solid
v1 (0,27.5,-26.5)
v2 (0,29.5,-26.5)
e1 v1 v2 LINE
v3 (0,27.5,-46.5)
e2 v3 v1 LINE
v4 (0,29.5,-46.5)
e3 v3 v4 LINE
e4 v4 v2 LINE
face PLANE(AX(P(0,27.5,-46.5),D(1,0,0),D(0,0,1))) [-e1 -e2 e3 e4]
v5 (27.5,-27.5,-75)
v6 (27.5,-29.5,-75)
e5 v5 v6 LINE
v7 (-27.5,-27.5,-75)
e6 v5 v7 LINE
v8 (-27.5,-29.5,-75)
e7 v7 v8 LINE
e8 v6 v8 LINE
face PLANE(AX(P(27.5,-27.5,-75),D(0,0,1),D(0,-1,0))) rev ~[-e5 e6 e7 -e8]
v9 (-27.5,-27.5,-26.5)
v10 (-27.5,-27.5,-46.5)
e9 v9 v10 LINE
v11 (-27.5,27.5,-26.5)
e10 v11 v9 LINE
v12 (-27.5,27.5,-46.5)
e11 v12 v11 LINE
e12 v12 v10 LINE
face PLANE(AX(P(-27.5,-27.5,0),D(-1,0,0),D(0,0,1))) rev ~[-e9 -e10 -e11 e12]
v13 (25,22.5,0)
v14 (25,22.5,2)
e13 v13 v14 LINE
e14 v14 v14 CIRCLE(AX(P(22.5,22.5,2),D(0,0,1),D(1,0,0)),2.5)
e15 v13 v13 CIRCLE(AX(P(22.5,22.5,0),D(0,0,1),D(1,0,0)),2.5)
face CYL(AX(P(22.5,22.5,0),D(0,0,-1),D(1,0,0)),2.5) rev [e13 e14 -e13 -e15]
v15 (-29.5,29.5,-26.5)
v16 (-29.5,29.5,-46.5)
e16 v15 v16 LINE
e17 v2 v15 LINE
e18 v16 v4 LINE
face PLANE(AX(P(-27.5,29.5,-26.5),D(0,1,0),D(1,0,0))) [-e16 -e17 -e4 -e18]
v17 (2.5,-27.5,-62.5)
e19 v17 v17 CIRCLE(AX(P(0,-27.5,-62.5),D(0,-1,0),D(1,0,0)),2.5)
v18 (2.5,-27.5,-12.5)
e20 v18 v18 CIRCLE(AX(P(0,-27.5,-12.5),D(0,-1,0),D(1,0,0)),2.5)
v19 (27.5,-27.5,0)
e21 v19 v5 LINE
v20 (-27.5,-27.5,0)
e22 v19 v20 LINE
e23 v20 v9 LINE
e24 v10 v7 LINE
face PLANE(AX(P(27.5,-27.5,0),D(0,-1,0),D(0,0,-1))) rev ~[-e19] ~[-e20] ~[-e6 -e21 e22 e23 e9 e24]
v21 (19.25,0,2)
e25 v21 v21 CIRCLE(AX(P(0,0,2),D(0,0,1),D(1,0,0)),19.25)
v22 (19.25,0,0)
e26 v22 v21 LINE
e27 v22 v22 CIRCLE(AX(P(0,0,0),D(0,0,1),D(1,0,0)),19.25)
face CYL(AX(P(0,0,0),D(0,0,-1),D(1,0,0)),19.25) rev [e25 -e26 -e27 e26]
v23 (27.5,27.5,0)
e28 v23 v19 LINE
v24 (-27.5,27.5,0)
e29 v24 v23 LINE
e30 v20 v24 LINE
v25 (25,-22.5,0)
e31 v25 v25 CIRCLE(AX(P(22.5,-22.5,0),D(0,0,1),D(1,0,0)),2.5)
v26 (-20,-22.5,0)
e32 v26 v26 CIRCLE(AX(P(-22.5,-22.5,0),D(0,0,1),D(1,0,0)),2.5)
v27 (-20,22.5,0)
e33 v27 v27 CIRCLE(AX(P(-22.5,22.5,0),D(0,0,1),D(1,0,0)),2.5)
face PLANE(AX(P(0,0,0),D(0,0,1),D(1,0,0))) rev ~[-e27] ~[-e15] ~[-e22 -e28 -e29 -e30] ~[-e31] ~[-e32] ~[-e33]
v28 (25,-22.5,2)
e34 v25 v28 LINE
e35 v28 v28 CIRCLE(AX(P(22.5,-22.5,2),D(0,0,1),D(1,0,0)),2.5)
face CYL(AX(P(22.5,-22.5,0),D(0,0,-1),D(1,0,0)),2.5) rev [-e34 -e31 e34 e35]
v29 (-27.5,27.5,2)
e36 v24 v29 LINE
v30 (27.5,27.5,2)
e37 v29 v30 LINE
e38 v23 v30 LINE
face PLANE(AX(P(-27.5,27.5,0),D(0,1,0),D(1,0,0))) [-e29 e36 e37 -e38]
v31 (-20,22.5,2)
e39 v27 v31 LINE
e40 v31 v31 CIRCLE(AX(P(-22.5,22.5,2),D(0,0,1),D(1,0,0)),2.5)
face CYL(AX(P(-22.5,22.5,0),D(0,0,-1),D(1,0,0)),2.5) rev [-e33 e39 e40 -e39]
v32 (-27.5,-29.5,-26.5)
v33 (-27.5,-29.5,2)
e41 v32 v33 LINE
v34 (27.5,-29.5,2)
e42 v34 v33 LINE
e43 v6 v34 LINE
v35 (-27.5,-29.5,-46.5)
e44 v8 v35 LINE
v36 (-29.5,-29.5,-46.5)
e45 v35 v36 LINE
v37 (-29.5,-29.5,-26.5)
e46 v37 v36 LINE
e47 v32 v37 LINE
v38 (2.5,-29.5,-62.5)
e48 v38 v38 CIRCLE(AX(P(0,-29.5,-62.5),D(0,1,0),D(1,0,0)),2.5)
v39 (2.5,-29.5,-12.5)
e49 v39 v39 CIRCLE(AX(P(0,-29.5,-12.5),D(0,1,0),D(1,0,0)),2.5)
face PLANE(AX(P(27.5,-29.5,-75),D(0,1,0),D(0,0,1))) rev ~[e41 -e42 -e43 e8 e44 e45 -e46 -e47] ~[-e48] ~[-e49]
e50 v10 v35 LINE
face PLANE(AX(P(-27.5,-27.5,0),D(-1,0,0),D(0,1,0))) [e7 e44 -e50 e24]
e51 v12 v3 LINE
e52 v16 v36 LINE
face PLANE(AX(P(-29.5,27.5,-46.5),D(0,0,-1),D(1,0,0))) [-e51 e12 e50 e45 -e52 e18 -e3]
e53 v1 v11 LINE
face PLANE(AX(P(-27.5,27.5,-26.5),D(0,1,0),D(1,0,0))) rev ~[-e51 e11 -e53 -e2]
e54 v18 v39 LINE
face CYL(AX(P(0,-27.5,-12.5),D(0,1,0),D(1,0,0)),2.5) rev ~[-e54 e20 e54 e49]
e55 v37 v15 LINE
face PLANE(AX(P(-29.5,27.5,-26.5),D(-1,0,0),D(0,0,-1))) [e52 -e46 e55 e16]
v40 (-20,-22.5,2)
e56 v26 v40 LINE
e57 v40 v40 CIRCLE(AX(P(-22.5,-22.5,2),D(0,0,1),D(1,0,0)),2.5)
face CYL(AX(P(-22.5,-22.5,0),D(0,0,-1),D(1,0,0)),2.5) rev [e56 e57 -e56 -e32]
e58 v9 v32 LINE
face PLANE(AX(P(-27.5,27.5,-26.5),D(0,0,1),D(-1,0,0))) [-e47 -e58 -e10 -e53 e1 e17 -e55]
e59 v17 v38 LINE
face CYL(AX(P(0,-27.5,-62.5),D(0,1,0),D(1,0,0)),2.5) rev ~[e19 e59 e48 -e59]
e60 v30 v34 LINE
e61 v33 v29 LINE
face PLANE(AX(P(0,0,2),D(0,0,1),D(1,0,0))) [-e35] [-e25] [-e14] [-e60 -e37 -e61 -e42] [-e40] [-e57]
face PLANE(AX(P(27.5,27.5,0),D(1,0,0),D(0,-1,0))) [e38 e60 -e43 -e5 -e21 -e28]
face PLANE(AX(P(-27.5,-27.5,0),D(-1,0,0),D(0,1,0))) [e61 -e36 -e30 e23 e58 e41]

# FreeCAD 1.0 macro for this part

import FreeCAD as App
import Part
import Sketcher
Q = App.Units.Quantity

doc = App.newDocument("Part")
params = doc.addObject("Spreadsheet::Sheet", "Params")
for row, (alias, value) in enumerate([
    ("sketch1_diameter", "5 mm"),
    ("sketch1_diameter2", "38.5 mm"),
    ("sketch1_width", "55 mm"),
    ("pad1_length", "2 mm"),
    ("sketch2_width", "2 mm"),
    ("sketch2_height", "77 mm"),
    ("pad2_length", "55 mm"),
    ("sketch3_width", "57 mm"),
    ("sketch3_height", "20 mm"),
    ("pad3_length", "2 mm"),
    ("sketch4_height", "20 mm"),
    ("sketch4_width", "29.5 mm"),
    ("pad4_length", "2 mm"),
    ("sketch5_diameter", "5 mm"),
    ("pocket1_length", "2 mm"),
], start=1):
    params.set(f"A{row}", alias)
    params.set(f"B{row}", "=" + value)
    params.setAlias(f"B{row}", alias)

body = doc.addObject("PartDesign::Body", "Body")

# Sketch on XY plane
sketch1 = doc.addObject("Sketcher::SketchObject", "Sketch")
body.addObject(sketch1)
sketch1.AttachmentSupport = (doc.XY_Plane, [""])
sketch1.MapMode = "FlatFace"
sketch1.addGeometry([
    Part.LineSegment(App.Vector(27.5, 27.5, 0), App.Vector(-27.5, 27.5, 0)),  # 0
    Part.LineSegment(App.Vector(-27.5, 27.5, 0), App.Vector(-27.5, -27.5, 0)),  # 1
    Part.LineSegment(App.Vector(-27.5, -27.5, 0), App.Vector(27.5, -27.5, 0)),  # 2
    Part.LineSegment(App.Vector(27.5, -27.5, 0), App.Vector(27.5, 27.5, 0)),  # 3
    Part.Circle(App.Vector(-22.5, -22.5, 0), App.Vector(0, 0, 1), 2.5),  # 4
    Part.Circle(App.Vector(22.5, -22.5, 0), App.Vector(0, 0, 1), 2.5),  # 5
    Part.Circle(App.Vector(-22.5, 22.5, 0), App.Vector(0, 0, 1), 2.5),  # 6
    Part.Circle(App.Vector(0, 0, 0), App.Vector(0, 0, 1), 19.2),  # 7
    Part.Circle(App.Vector(22.5, 22.5, 0), App.Vector(0, 0, 1), 2.5),  # 8
], False)
sketch1.addConstraint([
    Sketcher.Constraint("Coincident", 0, 2, 1, 1),
    Sketcher.Constraint("Coincident", 1, 2, 2, 1),
    Sketcher.Constraint("Coincident", 2, 2, 3, 1),
    Sketcher.Constraint("Coincident", 3, 2, 0, 1),
    Sketcher.Constraint("Horizontal", 0),
    Sketcher.Constraint("Vertical", 1),
    Sketcher.Constraint("Horizontal", 2),
    Sketcher.Constraint("Vertical", 3),
    Sketcher.Constraint("Coincident", 7, 3, -1, 1),
    Sketcher.Constraint("Equal", 4, 5),
    Sketcher.Constraint("Equal", 5, 6),
    Sketcher.Constraint("Equal", 6, 8),
    Sketcher.Constraint("Symmetric", 5, 3, 6, 3, -1, 1),
    Sketcher.Constraint("Symmetric", 4, 3, 8, 3, -1, 1),
    Sketcher.Constraint("Symmetric", 0, 2, 2, 2, -1, 1),
    Sketcher.Constraint("Symmetric", 4, 3, 5, 3, -2),
    Sketcher.Constraint("Equal", 2, 1),
    Sketcher.Constraint("Diameter", 4, Q("5 mm")),
    Sketcher.Constraint("Diameter", 7, Q("38.5 mm")),
    Sketcher.Constraint("DistanceX", 0, 2, 0, 1, Q("55 mm")),
    Sketcher.Constraint("DistanceX", 0, 2, 6, 3, Q("5 mm")),
    Sketcher.Constraint("DistanceY", 6, 3, 0, 2, Q("5 mm")),
])
sketch1.setExpression("Constraints[17]", "Params.sketch1_diameter")
sketch1.setExpression("Constraints[18]", "Params.sketch1_diameter2")
sketch1.setExpression("Constraints[19]", "Params.sketch1_width")
pad1 = doc.addObject("PartDesign::Pad", "Pad")
body.addObject(pad1)
pad1.Profile = sketch1
pad1.setExpression("Length", "Params.pad1_length")

# Sketch on YZ plane
sketch2 = doc.addObject("Sketcher::SketchObject", "Sketch001")
body.addObject(sketch2)
sketch2.AttachmentSupport = (doc.YZ_Plane, [""])
sketch2.MapMode = "FlatFace"
sketch2.AttachmentOffset = App.Placement(App.Vector(0, 0, 27.5), App.Rotation())
sketch2.addGeometry([
    Part.LineSegment(App.Vector(-27.5, -75, 0), App.Vector(-27.5, 2, 0)),
    Part.LineSegment(App.Vector(-27.5, 2, 0), App.Vector(-29.5, 2, 0)),
    Part.LineSegment(App.Vector(-29.5, 2, 0), App.Vector(-29.5, -75, 0)),
    Part.LineSegment(App.Vector(-29.5, -75, 0), App.Vector(-27.5, -75, 0)),
], False)
sketch2.addConstraint([
    Sketcher.Constraint("Coincident", 0, 2, 1, 1),
    Sketcher.Constraint("Coincident", 1, 2, 2, 1),
    Sketcher.Constraint("Coincident", 2, 2, 3, 1),
    Sketcher.Constraint("Coincident", 3, 2, 0, 1),
    Sketcher.Constraint("Vertical", 0),
    Sketcher.Constraint("Horizontal", 1),
    Sketcher.Constraint("Vertical", 2),
    Sketcher.Constraint("Horizontal", 3),
    Sketcher.Constraint("DistanceX", 1, 2, 1, 1, Q("2 mm")),
    Sketcher.Constraint("DistanceY", 0, 1, 0, 2, Q("77 mm")),
    Sketcher.Constraint("DistanceY", -1, 1, 0, 2, Q("2 mm")),
    Sketcher.Constraint("DistanceX", 0, 2, -1, 1, Q("27.5 mm")),
])
sketch2.setExpression("Constraints[8]", "Params.sketch2_width")
sketch2.setExpression("Constraints[9]", "Params.sketch2_height")
pad2 = doc.addObject("PartDesign::Pad", "Pad001")
body.addObject(pad2)
pad2.Profile = sketch2
pad2.setExpression("Length", "Params.pad2_length")
pad2.Reversed = True

# Sketch on YZ plane
sketch3 = doc.addObject("Sketcher::SketchObject", "Sketch002")
body.addObject(sketch3)
sketch3.AttachmentSupport = (doc.YZ_Plane, [""])
sketch3.MapMode = "FlatFace"
sketch3.AttachmentOffset = App.Placement(App.Vector(0, 0, -27.5), App.Rotation())
sketch3.addGeometry([
    Part.LineSegment(App.Vector(-30, -46, 0), App.Vector(-30, -26, 0)),
    Part.LineSegment(App.Vector(-30, -26, 0), App.Vector(28, -26, 0)),
    Part.LineSegment(App.Vector(28, -26, 0), App.Vector(28, -46, 0)),
    Part.LineSegment(App.Vector(28, -46, 0), App.Vector(-30, -46, 0)),
], False)
sketch3.addConstraint([
    Sketcher.Constraint("Coincident", 0, 2, 1, 1),
    Sketcher.Constraint("Coincident", 1, 2, 2, 1),
    Sketcher.Constraint("Coincident", 2, 2, 3, 1),
    Sketcher.Constraint("Coincident", 3, 2, 0, 1),
    Sketcher.Constraint("Vertical", 0),
    Sketcher.Constraint("Horizontal", 1),
    Sketcher.Constraint("Vertical", 2),
    Sketcher.Constraint("Horizontal", 3),
    Sketcher.Constraint("DistanceX", 1, 1, 1, 2, Q("57 mm")),
    Sketcher.Constraint("DistanceY", 0, 1, 0, 2, Q("20 mm")),
    Sketcher.Constraint("DistanceX", 0, 2, -1, 1, Q("29.5 mm")),
    Sketcher.Constraint("DistanceY", 0, 2, -1, 1, Q("26.5 mm")),
])
sketch3.setExpression("Constraints[8]", "Params.sketch3_width")
sketch3.setExpression("Constraints[9]", "Params.sketch3_height")
pad3 = doc.addObject("PartDesign::Pad", "Pad002")
body.addObject(pad3)
pad3.Profile = sketch3
pad3.setExpression("Length", "Params.pad3_length")
pad3.Reversed = True

# Sketch on XZ plane
sketch4 = doc.addObject("Sketcher::SketchObject", "Sketch003")
body.addObject(sketch4)
sketch4.AttachmentSupport = (doc.XZ_Plane, [""])
sketch4.MapMode = "FlatFace"
sketch4.AttachmentOffset = App.Placement(App.Vector(0, 0, -27.5), App.Rotation())
sketch4.addGeometry([
    Part.LineSegment(App.Vector(-30, -46, 0), App.Vector(-30, -26, 0)),
    Part.LineSegment(App.Vector(-30, -26, 0), App.Vector(0, -26, 0)),
    Part.LineSegment(App.Vector(0, -26, 0), App.Vector(0, -46, 0)),
    Part.LineSegment(App.Vector(0, -46, 0), App.Vector(-30, -46, 0)),
], False)
sketch4.addConstraint([
    Sketcher.Constraint("Coincident", 0, 2, 1, 1),
    Sketcher.Constraint("Coincident", 1, 2, 2, 1),
    Sketcher.Constraint("Coincident", 2, 2, 3, 1),
    Sketcher.Constraint("Coincident", 3, 2, 0, 1),
    Sketcher.Constraint("Vertical", 0),
    Sketcher.Constraint("Horizontal", 1),
    Sketcher.Constraint("Vertical", 2),
    Sketcher.Constraint("Horizontal", 3),
    Sketcher.Constraint("PointOnObject", 1, 2, -2),
    Sketcher.Constraint("DistanceY", 0, 1, 0, 2, Q("20 mm")),
    Sketcher.Constraint("DistanceX", 1, 1, 1, 2, Q("29.5 mm")),
    Sketcher.Constraint("DistanceY", 0, 2, -1, 1, Q("26.5 mm")),
])
sketch4.setExpression("Constraints[9]", "Params.sketch4_height")
sketch4.setExpression("Constraints[10]", "Params.sketch4_width")
pad4 = doc.addObject("PartDesign::Pad", "Pad003")
body.addObject(pad4)
pad4.Profile = sketch4
pad4.setExpression("Length", "Params.pad4_length")
pad4.Reversed = True

# Sketch on XZ plane
sketch5 = doc.addObject("Sketcher::SketchObject", "Sketch004")
body.addObject(sketch5)
sketch5.AttachmentSupport = (doc.XZ_Plane, [""])
sketch5.MapMode = "FlatFace"
sketch5.AttachmentOffset = App.Placement(App.Vector(0, 0, 27.5), App.Rotation())
sketch5.addGeometry([
    Part.Circle(App.Vector(0, -62.5, 0), App.Vector(0, 0, 1), 2.5),
    Part.Circle(App.Vector(0, -12.5, 0), App.Vector(0, 0, 1), 2.5),
], False)
sketch5.addConstraint([
    Sketcher.Constraint("Equal", 0, 1),
    Sketcher.Constraint("PointOnObject", 0, 3, -2),
    Sketcher.Constraint("PointOnObject", 1, 3, -2),
    Sketcher.Constraint("Diameter", 0, Q("5 mm")),
    Sketcher.Constraint("DistanceY", 0, 3, 1, 3, Q("50 mm")),
    Sketcher.Constraint("DistanceY", 0, 3, -1, 1, Q("62.5 mm")),
])
sketch5.setExpression("Constraints[3]", "Params.sketch5_diameter")
pocket1 = doc.addObject("PartDesign::Pocket", "Pocket")
body.addObject(pocket1)
pocket1.Profile = sketch5
pocket1.setExpression("Length", "Params.pocket1_length")
pocket1.Reversed = True

doc.recompute()
